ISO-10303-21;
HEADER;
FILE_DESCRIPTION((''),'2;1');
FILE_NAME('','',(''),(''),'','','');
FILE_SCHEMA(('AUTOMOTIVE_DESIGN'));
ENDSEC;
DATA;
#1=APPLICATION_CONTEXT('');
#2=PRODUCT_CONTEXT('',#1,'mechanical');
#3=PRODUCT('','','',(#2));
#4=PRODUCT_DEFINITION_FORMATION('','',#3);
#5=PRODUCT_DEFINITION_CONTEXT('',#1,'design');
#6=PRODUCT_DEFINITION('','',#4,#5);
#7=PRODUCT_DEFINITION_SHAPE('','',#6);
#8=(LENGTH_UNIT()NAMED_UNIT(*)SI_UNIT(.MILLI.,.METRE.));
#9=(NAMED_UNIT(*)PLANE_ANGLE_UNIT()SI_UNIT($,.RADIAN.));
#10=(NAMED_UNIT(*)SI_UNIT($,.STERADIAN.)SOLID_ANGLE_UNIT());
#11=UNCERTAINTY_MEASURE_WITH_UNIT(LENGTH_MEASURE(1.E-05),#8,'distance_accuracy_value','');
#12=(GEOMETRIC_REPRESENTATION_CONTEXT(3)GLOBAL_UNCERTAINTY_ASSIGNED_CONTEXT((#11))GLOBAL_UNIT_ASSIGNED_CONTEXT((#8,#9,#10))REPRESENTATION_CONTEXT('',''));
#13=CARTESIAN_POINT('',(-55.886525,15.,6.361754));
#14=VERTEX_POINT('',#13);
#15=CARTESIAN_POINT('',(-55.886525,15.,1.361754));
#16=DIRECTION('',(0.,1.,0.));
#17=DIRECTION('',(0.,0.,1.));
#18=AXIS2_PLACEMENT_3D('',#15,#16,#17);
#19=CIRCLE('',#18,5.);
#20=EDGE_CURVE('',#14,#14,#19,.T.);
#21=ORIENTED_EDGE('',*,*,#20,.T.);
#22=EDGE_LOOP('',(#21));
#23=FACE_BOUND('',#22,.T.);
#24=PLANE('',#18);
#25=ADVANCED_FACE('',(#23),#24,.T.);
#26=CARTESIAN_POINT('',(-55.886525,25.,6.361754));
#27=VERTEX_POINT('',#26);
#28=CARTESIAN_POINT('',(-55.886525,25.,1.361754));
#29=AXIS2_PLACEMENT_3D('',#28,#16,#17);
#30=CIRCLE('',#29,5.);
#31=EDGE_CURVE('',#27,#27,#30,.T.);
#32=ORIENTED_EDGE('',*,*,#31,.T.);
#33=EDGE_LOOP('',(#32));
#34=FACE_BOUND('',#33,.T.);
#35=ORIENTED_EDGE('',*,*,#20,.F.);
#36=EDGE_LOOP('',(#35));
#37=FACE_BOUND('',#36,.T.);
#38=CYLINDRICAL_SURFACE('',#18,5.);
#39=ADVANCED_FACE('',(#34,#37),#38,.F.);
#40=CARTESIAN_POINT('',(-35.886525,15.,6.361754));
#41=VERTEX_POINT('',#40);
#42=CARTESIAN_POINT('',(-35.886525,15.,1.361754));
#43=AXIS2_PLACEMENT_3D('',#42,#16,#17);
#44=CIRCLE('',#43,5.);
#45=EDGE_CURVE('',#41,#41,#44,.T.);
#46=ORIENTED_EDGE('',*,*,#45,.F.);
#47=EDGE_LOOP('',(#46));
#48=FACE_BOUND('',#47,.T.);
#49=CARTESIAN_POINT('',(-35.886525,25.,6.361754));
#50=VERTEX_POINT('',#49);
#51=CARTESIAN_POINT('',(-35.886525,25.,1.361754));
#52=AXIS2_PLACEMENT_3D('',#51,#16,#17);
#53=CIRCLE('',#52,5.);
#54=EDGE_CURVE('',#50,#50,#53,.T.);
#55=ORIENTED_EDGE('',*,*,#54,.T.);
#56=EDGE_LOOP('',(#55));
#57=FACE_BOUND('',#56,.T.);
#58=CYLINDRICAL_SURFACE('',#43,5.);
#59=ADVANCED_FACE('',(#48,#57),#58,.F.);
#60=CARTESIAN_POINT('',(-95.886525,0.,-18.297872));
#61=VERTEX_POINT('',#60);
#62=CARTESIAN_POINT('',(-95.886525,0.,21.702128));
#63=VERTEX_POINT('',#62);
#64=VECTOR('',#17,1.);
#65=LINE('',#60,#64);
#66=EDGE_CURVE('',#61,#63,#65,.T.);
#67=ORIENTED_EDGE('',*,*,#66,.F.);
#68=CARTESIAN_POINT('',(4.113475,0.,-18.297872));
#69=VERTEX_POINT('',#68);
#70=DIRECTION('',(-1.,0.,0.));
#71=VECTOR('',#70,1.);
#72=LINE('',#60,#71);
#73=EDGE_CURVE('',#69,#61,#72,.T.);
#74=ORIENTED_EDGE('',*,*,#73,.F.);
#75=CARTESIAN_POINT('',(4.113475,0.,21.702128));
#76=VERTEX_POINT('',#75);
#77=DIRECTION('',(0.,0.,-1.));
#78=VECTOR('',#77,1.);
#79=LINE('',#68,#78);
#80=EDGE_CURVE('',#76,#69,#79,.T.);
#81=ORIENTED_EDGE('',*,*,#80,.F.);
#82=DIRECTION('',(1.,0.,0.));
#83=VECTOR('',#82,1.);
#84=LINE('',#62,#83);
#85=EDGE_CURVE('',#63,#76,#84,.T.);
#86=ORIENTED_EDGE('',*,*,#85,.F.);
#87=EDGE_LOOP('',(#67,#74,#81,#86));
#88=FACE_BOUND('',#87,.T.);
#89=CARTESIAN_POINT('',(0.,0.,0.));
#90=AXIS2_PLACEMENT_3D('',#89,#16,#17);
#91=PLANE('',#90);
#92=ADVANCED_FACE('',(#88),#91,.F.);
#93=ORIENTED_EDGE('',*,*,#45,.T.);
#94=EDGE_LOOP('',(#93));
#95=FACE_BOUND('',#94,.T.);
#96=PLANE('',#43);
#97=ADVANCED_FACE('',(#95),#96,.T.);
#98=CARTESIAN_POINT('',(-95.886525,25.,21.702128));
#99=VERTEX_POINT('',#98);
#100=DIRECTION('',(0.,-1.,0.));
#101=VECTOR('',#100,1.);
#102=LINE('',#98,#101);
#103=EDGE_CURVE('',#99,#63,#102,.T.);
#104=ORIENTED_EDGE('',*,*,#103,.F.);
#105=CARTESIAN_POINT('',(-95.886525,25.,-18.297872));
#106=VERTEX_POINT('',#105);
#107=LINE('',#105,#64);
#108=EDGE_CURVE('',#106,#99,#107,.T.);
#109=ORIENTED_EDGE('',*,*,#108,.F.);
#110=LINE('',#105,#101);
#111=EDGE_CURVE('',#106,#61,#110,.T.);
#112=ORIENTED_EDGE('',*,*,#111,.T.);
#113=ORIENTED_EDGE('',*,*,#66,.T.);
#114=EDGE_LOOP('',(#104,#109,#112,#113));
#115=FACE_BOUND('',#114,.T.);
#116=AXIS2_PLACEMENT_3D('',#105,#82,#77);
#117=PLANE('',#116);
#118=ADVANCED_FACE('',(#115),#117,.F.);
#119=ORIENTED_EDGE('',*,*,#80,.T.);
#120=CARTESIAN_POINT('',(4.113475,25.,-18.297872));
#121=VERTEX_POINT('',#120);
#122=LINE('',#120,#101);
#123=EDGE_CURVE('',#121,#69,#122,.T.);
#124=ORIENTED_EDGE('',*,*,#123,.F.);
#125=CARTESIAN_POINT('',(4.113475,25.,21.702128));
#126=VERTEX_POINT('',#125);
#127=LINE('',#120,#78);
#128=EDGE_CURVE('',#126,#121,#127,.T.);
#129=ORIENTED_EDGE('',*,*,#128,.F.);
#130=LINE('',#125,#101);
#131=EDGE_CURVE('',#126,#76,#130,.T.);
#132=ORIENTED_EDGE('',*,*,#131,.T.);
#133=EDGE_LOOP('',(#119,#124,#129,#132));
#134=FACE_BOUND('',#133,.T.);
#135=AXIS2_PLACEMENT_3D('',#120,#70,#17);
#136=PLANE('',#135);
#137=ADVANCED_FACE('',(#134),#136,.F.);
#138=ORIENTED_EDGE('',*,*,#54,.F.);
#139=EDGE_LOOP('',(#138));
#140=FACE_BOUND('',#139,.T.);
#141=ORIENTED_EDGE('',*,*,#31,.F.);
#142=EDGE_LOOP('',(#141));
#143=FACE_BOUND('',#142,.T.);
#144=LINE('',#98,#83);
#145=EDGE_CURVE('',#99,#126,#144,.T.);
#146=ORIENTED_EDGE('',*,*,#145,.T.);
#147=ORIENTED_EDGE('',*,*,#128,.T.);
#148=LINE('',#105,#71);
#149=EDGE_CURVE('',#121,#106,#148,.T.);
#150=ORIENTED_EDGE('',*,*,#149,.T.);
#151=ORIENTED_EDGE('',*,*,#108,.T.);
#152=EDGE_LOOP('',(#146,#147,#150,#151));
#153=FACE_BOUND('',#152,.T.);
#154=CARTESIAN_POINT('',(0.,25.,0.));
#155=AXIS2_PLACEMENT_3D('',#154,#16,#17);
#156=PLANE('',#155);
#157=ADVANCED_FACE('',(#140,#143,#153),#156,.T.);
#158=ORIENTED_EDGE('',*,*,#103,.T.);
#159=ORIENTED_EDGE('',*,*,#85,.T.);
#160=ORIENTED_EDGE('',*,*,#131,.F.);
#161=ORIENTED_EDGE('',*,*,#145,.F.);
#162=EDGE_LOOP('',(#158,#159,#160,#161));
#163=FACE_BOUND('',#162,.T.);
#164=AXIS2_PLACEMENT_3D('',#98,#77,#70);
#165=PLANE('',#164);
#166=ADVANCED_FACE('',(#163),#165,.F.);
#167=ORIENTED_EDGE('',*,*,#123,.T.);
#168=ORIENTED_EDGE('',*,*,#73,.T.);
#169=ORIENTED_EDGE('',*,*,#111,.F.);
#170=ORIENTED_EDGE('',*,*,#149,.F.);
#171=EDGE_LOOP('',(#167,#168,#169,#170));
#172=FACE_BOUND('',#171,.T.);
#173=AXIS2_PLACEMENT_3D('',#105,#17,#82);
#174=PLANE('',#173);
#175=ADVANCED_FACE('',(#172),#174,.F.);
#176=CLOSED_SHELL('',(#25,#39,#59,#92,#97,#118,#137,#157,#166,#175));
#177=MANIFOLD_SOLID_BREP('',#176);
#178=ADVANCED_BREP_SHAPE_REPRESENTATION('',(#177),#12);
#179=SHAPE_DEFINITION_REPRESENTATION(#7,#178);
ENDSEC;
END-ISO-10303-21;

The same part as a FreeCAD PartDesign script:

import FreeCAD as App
import Part
import Sketcher
from FreeCAD import Vector
Q = App.Units.Quantity

doc = App.newDocument("Part")
body = doc.addObject("PartDesign::Body", "Body")

sketch1 = body.newObject("Sketcher::SketchObject", "Sketch")
sketch1.AttachmentSupport = (doc.getObject("XZ_Plane"), [""])
sketch1.MapMode = "FlatFace"
sketch1.addGeometry(Part.LineSegment(Vector(-96, -18, 0), Vector(-96, 22, 0)), False)
sketch1.addGeometry(Part.LineSegment(Vector(-96, 22, 0), Vector(4, 22, 0)), False)
sketch1.addGeometry(Part.LineSegment(Vector(4, 22, 0), Vector(4, -18, 0)), False)
sketch1.addGeometry(Part.LineSegment(Vector(4, -18, 0), Vector(-96, -18, 0)), False)
sketch1.addConstraint(Sketcher.Constraint("Coincident", 0, 2, 1, 1))
sketch1.addConstraint(Sketcher.Constraint("Coincident", 1, 2, 2, 1))
sketch1.addConstraint(Sketcher.Constraint("Coincident", 2, 2, 3, 1))
sketch1.addConstraint(Sketcher.Constraint("Coincident", 3, 2, 0, 1))
sketch1.addConstraint(Sketcher.Constraint("Vertical", 0))
sketch1.addConstraint(Sketcher.Constraint("Horizontal", 1))
sketch1.addConstraint(Sketcher.Constraint("Vertical", 2))
sketch1.addConstraint(Sketcher.Constraint("Horizontal", 3))
sketch1.addConstraint(Sketcher.Constraint("DistanceX", 1, 1, 1, 2, Q("100 mm")))
sketch1.addConstraint(Sketcher.Constraint("DistanceY", 0, 1, 0, 2, Q("40 mm")))
sketch1.addConstraint(Sketcher.Constraint("DistanceX", 0, 2, -1, 1, Q("95.886525 mm")))
sketch1.addConstraint(Sketcher.Constraint("DistanceY", -1, 1, 0, 2, Q("21.702128 mm")))
pad1 = body.newObject("PartDesign::Pad", "Pad")
pad1.Profile = sketch1
pad1.Length = 25
pad1.Reversed = True

sketch2 = body.newObject("Sketcher::SketchObject", "Sketch001")
sketch2.AttachmentSupport = (doc.getObject("XZ_Plane"), [""])
sketch2.MapMode = "FlatFace"
sketch2.AttachmentOffset = App.Placement(Vector(0, 0, -25), App.Rotation())
sketch2.addGeometry(Part.Circle(Vector(-56, 1, 0), Vector(0, 0, 1), 5), False)
sketch2.addGeometry(Part.Circle(Vector(-36, 1, 0), Vector(0, 0, 1), 5), False)
sketch2.addConstraint(Sketcher.Constraint("Equal", 0, 1))
sketch2.addConstraint(Sketcher.Constraint("Horizontal", 0, 3, 1, 3))
sketch2.addConstraint(Sketcher.Constraint("Diameter", 0, Q("10 mm")))
sketch2.addConstraint(Sketcher.Constraint("DistanceX", 0, 3, 1, 3, Q("20 mm")))
sketch2.addConstraint(Sketcher.Constraint("DistanceX", 0, 3, -1, 1, Q("55.886525 mm")))
sketch2.addConstraint(Sketcher.Constraint("DistanceY", -1, 1, 0, 3, Q("1.361754 mm")))
pocket1 = body.newObject("PartDesign::Pocket", "Pocket")
pocket1.Profile = sketch2
pocket1.Length = 10
pocket1.Reversed = True

doc.recompute()
